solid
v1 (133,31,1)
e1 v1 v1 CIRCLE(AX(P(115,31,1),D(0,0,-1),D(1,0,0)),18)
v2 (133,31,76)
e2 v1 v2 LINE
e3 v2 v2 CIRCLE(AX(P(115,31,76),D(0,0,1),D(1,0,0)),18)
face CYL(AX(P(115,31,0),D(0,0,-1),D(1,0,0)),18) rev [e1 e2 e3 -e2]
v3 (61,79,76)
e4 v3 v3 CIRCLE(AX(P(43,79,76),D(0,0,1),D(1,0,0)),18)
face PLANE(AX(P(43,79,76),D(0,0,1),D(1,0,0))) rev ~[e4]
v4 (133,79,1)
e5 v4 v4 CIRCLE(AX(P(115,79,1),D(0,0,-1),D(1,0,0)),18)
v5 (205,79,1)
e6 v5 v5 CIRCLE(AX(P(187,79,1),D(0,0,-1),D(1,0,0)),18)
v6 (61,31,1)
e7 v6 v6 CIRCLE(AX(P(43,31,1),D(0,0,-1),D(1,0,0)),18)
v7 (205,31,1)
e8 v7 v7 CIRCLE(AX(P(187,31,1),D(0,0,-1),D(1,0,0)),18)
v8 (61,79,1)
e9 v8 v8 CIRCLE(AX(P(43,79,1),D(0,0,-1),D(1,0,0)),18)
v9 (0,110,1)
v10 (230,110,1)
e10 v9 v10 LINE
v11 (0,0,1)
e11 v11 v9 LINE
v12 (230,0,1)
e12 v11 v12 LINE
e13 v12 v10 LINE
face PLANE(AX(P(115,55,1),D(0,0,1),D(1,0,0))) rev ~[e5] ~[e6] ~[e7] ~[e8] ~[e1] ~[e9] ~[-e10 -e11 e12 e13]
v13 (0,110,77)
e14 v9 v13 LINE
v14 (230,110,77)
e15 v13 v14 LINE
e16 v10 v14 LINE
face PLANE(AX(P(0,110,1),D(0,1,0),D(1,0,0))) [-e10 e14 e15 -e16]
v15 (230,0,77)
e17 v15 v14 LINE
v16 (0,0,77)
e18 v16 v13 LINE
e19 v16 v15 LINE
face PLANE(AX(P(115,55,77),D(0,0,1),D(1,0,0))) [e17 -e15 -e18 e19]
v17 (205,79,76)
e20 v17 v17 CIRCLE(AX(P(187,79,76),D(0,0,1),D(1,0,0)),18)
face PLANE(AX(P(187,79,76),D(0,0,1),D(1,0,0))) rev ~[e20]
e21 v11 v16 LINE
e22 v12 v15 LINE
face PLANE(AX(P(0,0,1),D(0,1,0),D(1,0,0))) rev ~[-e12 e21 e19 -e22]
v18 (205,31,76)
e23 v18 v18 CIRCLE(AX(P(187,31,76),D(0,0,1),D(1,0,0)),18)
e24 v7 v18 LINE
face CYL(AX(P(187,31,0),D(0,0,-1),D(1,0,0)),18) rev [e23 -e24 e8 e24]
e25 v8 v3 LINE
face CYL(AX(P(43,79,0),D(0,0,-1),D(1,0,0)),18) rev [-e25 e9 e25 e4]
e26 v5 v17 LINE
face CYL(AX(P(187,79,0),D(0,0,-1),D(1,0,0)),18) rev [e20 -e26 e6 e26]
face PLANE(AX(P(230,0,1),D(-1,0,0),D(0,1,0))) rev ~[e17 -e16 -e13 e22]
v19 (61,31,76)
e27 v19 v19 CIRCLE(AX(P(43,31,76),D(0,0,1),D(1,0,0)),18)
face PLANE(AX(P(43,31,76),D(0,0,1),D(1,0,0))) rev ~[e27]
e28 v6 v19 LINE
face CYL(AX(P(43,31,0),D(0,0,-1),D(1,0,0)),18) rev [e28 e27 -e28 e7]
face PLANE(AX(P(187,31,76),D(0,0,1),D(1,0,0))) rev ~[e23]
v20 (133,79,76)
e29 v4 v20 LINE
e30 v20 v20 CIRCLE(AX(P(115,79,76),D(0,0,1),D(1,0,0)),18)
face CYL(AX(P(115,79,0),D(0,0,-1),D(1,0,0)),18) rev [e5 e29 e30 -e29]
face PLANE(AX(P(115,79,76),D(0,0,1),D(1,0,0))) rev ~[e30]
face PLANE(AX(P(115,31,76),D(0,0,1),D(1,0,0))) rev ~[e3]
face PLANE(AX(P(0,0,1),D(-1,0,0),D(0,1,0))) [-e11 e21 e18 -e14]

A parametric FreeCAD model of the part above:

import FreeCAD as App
import Part
import Sketcher
from FreeCAD import Vector

doc = App.newDocument("Part")
body = doc.addObject("PartDesign::Body", "Body")

# Sketch on XY plane
sketch1 = body.newObject("Sketcher::SketchObject", "Sketch")
sketch1.AttachmentSupport = (doc.getObject("XY_Plane"), [""])
sketch1.MapMode = "FlatFace"
sketch1.addGeometry(Part.Circle(Vector(115, 31, 0), Vector(0, 0, 1), 18), False)
sketch1.addConstraint([
    Sketcher.Constraint("Diameter", 0, 36.0),
    Sketcher.Constraint("DistanceX", -1, 1, 0, 3, 115.0),
    Sketcher.Constraint("DistanceY", -1, 1, 0, 3, 31.0),
])
pad1 = body.newObject("PartDesign::Pad", "Pad")
pad1.Profile = sketch1
pad1.Length = 76
body2 = doc.addObject("PartDesign::Body", "Body001")

# Sketch on XY plane
sketch2 = body2.newObject("Sketcher::SketchObject", "Sketch001")
sketch2.AttachmentSupport = (doc.getObject("XY_Plane001"), [""])
sketch2.MapMode = "FlatFace"
sketch2.addGeometry(Part.Circle(Vector(187, 31, 0), Vector(0, 0, 1), 18), False)
sketch2.addConstraint([
    Sketcher.Constraint("Diameter", 0, 36.0),
    Sketcher.Constraint("DistanceX", -1, 1, 0, 3, 187.0),
    Sketcher.Constraint("DistanceY", -1, 1, 0, 3, 31.0),
])
pad2 = body2.newObject("PartDesign::Pad", "Pad001")
pad2.Profile = sketch2
pad2.Length = 76
body3 = doc.addObject("PartDesign::Body", "Body002")

# Sketch on XY plane
sketch3 = body3.newObject("Sketcher::SketchObject", "Sketch002")
sketch3.AttachmentSupport = (doc.getObject("XY_Plane002"), [""])
sketch3.MapMode = "FlatFace"
sketch3.addGeometry(Part.Circle(Vector(187, 79, 0), Vector(0, 0, 1), 18), False)
sketch3.addConstraint([
    Sketcher.Constraint("Diameter", 0, 36.0),
    Sketcher.Constraint("DistanceX", -1, 1, 0, 3, 187.0),
    Sketcher.Constraint("DistanceY", -1, 1, 0, 3, 79.0),
])
pad3 = body3.newObject("PartDesign::Pad", "Pad002")
pad3.Profile = sketch3
pad3.Length = 76
body4 = doc.addObject("PartDesign::Body", "Body003")

# Sketch on XY plane
sketch4 = body4.newObject("Sketcher::SketchObject", "Sketch003")
sketch4.AttachmentSupport = (doc.getObject("XY_Plane003"), [""])
sketch4.MapMode = "FlatFace"
sketch4.addGeometry(Part.Circle(Vector(115, 79, 0), Vector(0, 0, 1), 18), False)
sketch4.addConstraint([
    Sketcher.Constraint("Diameter", 0, 36.0),
    Sketcher.Constraint("DistanceX", -1, 1, 0, 3, 115.0),
    Sketcher.Constraint("DistanceY", -1, 1, 0, 3, 79.0),
])
pad4 = body4.newObject("PartDesign::Pad", "Pad003")
pad4.Profile = sketch4
pad4.Length = 76
body5 = doc.addObject("PartDesign::Body", "Body004")

# Sketch on XY plane
sketch5 = body5.newObject("Sketcher::SketchObject", "Sketch004")
sketch5.AttachmentSupport = (doc.getObject("XY_Plane004"), [""])
sketch5.MapMode = "FlatFace"
sketch5.addGeometry(Part.Circle(Vector(43, 79, 0), Vector(0, 0, 1), 18), False)
sketch5.addConstraint([
    Sketcher.Constraint("Diameter", 0, 36.0),
    Sketcher.Constraint("DistanceX", -1, 1, 0, 3, 43.0),
    Sketcher.Constraint("DistanceY", -1, 1, 0, 3, 79.0),
])
pad5 = body5.newObject("PartDesign::Pad", "Pad004")
pad5.Profile = sketch5
pad5.Length = 76
body6 = doc.addObject("PartDesign::Body", "Body005")
body6.AllowCompound = True

# Sketch on XY plane
sketch6 = body6.newObject("Sketcher::SketchObject", "Sketch005")
sketch6.AttachmentSupport = (doc.getObject("XY_Plane005"), [""])
sketch6.MapMode = "FlatFace"
sketch6.addGeometry(Part.Circle(Vector(43, 31, 0), Vector(0, 0, 1), 18), False)
sketch6.addConstraint([
    Sketcher.Constraint("Diameter", 0, 36.0),
    Sketcher.Constraint("DistanceX", -1, 1, 0, 3, 43.0),
    Sketcher.Constraint("DistanceY", -1, 1, 0, 3, 31.0),
])
pad6 = body6.newObject("PartDesign::Pad", "Pad005")
pad6.Profile = sketch6
pad6.Length = 76
doc.recompute()

boolean = body6.newObject("PartDesign::Boolean", "Boolean")
boolean.Type = "Fuse"
boolean.addObjects([body])
doc.recompute()

boolean2 = body6.newObject("PartDesign::Boolean", "Boolean001")
boolean2.Type = "Fuse"
boolean2.addObjects([body2])
doc.recompute()

boolean3 = body6.newObject("PartDesign::Boolean", "Boolean002")
boolean3.Type = "Fuse"
boolean3.addObjects([body3])
doc.recompute()

boolean4 = body6.newObject("PartDesign::Boolean", "Boolean003")
boolean4.Type = "Fuse"
boolean4.addObjects([body4])
doc.recompute()

boolean5 = body6.newObject("PartDesign::Boolean", "Boolean004")
boolean5.Type = "Fuse"
boolean5.addObjects([body5])
body7 = doc.addObject("PartDesign::Body", "Body006")

# Sketch on XY plane
sketch7 = body7.newObject("Sketcher::SketchObject", "Sketch006")
sketch7.AttachmentSupport = (doc.getObject("XY_Plane006"), [""])
sketch7.MapMode = "FlatFace"
sketch7.AttachmentOffset = App.Placement(Vector(0, 0, 1), App.Rotation())
sketch7.addGeometry([
    Part.LineSegment(Vector(0, 110, 0), Vector(0, 0, 0)),
    Part.LineSegment(Vector(0, 0, 0), Vector(230, 0, 0)),
    Part.LineSegment(Vector(230, 0, 0), Vector(230, 110, 0)),
    Part.LineSegment(Vector(230, 110, 0), Vector(0, 110, 0)),
], False)
sketch7.addConstraint([
    Sketcher.Constraint("Coincident", 0, 2, 1, 1),
    Sketcher.Constraint("Coincident", 1, 2, 2, 1),
    Sketcher.Constraint("Coincident", 2, 2, 3, 1),
    Sketcher.Constraint("Coincident", 3, 2, 0, 1),
    Sketcher.Constraint("Vertical", 0),
    Sketcher.Constraint("Horizontal", 1),
    Sketcher.Constraint("Vertical", 2),
    Sketcher.Constraint("Horizontal", 3),
    Sketcher.Constraint("Coincident", 0, 2, -1, 1),
    Sketcher.Constraint("DistanceX", 1, 1, 1, 2, 230.0),
    Sketcher.Constraint("DistanceY", 0, 2, 0, 1, 110.0),
])
pad7 = body7.newObject("PartDesign::Pad", "Pad006")
pad7.Profile = sketch7
pad7.Length = 76
doc.recompute()

boolean6 = body7.newObject("PartDesign::Boolean", "Boolean005")
boolean6.Type = "Cut"
boolean6.addObjects([body6])

doc.recompute()
